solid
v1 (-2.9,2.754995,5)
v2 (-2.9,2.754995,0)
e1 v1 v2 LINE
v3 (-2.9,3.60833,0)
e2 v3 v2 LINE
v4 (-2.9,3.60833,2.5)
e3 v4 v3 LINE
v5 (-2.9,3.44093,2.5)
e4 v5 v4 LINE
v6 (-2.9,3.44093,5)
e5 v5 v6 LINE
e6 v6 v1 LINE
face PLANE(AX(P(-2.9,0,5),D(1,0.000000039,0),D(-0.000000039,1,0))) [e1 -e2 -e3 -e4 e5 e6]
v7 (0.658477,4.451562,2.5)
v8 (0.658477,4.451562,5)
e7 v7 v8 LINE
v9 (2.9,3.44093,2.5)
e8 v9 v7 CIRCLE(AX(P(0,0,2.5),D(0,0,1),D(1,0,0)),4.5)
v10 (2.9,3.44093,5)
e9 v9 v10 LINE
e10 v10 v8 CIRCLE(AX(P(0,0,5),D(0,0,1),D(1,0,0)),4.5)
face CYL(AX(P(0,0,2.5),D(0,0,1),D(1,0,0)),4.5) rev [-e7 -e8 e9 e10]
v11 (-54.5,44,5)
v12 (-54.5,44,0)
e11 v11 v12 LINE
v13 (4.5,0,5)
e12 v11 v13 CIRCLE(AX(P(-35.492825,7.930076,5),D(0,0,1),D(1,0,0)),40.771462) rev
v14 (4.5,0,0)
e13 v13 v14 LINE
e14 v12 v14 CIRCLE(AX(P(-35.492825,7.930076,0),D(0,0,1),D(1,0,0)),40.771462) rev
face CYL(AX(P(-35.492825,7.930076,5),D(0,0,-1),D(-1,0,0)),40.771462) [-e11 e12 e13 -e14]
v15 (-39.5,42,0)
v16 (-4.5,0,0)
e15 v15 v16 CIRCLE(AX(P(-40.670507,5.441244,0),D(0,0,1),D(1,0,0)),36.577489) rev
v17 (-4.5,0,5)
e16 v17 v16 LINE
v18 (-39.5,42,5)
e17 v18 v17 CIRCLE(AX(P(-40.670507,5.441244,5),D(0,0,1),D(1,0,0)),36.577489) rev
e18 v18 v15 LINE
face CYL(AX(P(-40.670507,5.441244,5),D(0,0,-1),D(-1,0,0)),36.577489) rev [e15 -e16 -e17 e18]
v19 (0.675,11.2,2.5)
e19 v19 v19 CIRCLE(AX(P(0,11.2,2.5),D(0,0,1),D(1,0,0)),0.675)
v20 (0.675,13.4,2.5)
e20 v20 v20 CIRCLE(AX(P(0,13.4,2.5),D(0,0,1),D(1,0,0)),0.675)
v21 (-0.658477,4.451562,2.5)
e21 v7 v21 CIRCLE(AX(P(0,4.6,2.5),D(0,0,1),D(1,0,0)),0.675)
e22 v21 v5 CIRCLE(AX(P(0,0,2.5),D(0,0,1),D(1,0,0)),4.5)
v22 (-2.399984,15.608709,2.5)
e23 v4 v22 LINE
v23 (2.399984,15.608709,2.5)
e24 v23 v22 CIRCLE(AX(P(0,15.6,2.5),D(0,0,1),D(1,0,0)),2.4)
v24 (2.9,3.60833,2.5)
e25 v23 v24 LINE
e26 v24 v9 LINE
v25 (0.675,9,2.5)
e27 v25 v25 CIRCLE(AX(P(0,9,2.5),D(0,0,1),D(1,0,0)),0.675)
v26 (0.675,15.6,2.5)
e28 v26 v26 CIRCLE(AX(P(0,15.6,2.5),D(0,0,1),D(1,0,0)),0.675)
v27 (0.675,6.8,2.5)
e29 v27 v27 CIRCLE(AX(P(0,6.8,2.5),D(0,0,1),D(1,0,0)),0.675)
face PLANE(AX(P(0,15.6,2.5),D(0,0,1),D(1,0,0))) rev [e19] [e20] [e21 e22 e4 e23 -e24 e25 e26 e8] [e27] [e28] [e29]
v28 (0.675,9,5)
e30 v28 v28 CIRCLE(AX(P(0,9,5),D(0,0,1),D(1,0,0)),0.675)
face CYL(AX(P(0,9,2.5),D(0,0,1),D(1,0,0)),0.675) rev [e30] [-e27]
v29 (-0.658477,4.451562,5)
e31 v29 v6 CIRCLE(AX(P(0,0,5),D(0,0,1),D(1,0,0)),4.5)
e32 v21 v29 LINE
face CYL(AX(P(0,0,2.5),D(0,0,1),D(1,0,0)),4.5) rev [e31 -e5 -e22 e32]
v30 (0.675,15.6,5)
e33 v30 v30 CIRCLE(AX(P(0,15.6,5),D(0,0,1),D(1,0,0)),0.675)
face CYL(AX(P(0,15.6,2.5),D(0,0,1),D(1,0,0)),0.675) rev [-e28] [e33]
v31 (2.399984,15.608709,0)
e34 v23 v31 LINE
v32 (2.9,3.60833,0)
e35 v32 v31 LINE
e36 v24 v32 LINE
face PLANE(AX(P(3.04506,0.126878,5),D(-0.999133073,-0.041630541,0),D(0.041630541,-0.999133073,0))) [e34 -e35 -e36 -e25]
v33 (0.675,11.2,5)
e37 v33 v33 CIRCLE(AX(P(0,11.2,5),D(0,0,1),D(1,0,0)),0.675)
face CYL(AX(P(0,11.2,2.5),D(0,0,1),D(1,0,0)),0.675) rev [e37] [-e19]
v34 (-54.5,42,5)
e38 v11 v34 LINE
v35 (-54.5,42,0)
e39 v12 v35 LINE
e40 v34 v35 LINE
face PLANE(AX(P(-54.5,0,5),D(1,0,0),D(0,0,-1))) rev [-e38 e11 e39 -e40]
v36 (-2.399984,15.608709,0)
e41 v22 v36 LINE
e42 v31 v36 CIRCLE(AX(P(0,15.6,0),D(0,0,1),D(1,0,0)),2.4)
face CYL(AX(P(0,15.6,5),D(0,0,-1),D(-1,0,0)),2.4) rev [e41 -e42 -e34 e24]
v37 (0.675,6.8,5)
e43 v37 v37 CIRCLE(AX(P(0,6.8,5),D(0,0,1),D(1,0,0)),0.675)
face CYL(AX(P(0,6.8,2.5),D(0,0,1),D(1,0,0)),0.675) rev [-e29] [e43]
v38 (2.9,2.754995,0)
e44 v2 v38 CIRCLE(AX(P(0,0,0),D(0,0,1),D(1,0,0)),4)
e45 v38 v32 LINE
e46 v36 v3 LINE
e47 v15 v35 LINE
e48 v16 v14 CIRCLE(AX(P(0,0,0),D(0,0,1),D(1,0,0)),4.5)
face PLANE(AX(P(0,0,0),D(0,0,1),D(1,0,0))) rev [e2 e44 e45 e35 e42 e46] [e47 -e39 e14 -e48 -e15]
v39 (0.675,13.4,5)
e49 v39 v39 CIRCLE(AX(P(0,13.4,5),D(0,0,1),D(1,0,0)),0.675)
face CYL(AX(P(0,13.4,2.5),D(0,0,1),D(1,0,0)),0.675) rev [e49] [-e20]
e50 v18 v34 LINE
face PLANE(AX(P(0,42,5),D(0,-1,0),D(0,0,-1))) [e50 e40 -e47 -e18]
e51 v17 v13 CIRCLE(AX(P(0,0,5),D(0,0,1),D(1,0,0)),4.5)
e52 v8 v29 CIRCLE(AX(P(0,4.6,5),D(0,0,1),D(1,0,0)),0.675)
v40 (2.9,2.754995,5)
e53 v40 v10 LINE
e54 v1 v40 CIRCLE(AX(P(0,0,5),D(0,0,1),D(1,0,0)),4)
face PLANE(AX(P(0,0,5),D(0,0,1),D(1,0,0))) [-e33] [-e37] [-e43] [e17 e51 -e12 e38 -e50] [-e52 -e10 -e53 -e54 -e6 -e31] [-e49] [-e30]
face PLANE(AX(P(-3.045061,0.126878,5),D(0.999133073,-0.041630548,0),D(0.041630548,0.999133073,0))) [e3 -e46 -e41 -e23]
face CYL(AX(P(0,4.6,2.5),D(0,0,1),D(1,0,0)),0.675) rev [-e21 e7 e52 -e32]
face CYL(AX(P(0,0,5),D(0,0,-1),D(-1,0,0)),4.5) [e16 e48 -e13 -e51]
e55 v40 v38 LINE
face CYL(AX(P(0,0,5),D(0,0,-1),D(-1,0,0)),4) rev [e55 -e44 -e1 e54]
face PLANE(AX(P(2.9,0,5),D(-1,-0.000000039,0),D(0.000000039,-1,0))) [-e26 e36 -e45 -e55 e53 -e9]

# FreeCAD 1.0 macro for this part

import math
import FreeCAD as App
import Part
import Sketcher
from FreeCAD import Vector
Q = App.Units.Quantity

doc = App.newDocument("Part")
params = doc.addObject("Spreadsheet::Sheet", "Params")
for row, (alias, value) in enumerate([
    ("sketch1_radius", "4 mm"),
    ("sketch1_radius2", "4.5 mm"),
    ("sketch1_radius3", "2.4 mm"),
    ("sketch1_width", "15 mm"),
    ("sketch1_height", "2 mm"),
    ("pad1_length", "5 mm"),
    ("sketch2_radius", "2.4 mm"),
    ("sketch2_radius2", "4.5 mm"),
    ("sketch2_diameter", "1.35 mm"),
    ("pad2_length", "2.5 mm"),
], start=1):
    params.set(f"A{row}", alias)
    params.set(f"B{row}", "=" + value)
    params.setAlias(f"B{row}", alias)

body = doc.addObject("PartDesign::Body", "Body")

sketch1 = body.newObject("Sketcher::SketchObject", "Sketch")
sketch1.AttachmentSupport = (doc.getObject("XY_Plane"), [""])
sketch1.MapMode = "FlatFace"
sketch1.addGeometry([
    Part.ArcOfCircle(Part.Circle(Vector(-35.492825, 7.930076, 0), Vector(0, 0, 1), 40.771462), math.radians(-11.215554), math.radians(117.787148)),
    Part.LineSegment(Vector(-54.5, 44, 0), Vector(-54.5, 42, 0)),
    Part.LineSegment(Vector(-54.5, 42, 0), Vector(-39.5, 42, 0)),
    Part.ArcOfCircle(Part.Circle(Vector(-40.670507, 5.441244, 0), Vector(0, 0, 1), 36.577489), math.radians(-8.555037), math.radians(88.166179)),
    Part.ArcOfCircle(Part.Circle(Vector(0, 0, 0), Vector(0, 0, 1), 4.5), math.radians(180), math.radians(360)),
    Part.LineSegment(Vector(-2.9, 2.754995, 0), Vector(-2.9, 3.60833, 0)),
    Part.LineSegment(Vector(-2.9, 3.60833, 0), Vector(-2.399984, 15.608709, 0)),
    Part.ArcOfCircle(Part.Circle(Vector(0, 15.6, 0), Vector(0, 0, 1), 2.4), math.radians(0.207911), math.radians(179.792089)),
    Part.LineSegment(Vector(2.399984, 15.608709, 0), Vector(2.9, 3.60833, 0)),
    Part.LineSegment(Vector(2.9, 3.60833, 0), Vector(2.9, 2.754995, 0)),
    Part.ArcOfCircle(Part.Circle(Vector(0, 0, 0), Vector(0, 0, 1), 4), math.radians(136.468848), math.radians(403.531152)),
], False)
sketch1.addConstraint([
    Sketcher.Constraint("Coincident", 0, 2, 1, 1),
    Sketcher.Constraint("Coincident", 1, 2, 2, 1),
    Sketcher.Constraint("Coincident", 2, 2, 3, 2),
    Sketcher.Constraint("Coincident", 3, 1, 4, 1),
    Sketcher.Constraint("Coincident", 4, 2, 0, 1),
    Sketcher.Constraint("Coincident", 5, 2, 6, 1),
    Sketcher.Constraint("Coincident", 6, 2, 7, 2),
    Sketcher.Constraint("Coincident", 7, 1, 8, 1),
    Sketcher.Constraint("Coincident", 8, 2, 9, 1),
    Sketcher.Constraint("Coincident", 9, 2, 10, 2),
    Sketcher.Constraint("Coincident", 10, 1, 5, 1),
    Sketcher.Constraint("Vertical", 1),
    Sketcher.Constraint("Horizontal", 2),
    Sketcher.Constraint("Vertical", 5),
    Sketcher.Constraint("Vertical", 9),
    Sketcher.Constraint("Coincident", 4, 3, -1, 1),
    Sketcher.Constraint("Coincident", 10, 3, -1, 1),
    Sketcher.Constraint("Symmetric", 6, 2, 7, 1, -2),
    Sketcher.Constraint("Symmetric", 5, 2, 8, 2, -2),
    Sketcher.Constraint("PointOnObject", 3, 1, -1),
    Sketcher.Constraint("PointOnObject", 4, 2, -1),
    Sketcher.Constraint("Radius", 10, Q("4 mm")),
    Sketcher.Constraint("Radius", 4, Q("4.5 mm")),
    Sketcher.Constraint("Radius", 7, Q("2.4 mm")),
    Sketcher.Constraint("DistanceX", 2, 1, 2, 2, Q("15 mm")),
    Sketcher.Constraint("DistanceY", 1, 2, 1, 1, Q("2 mm")),
    Sketcher.Constraint("DistanceY", -1, 1, 0, 2, Q("44 mm")),
    Sketcher.Constraint("DistanceY", -1, 1, 7, 3, Q("15.6 mm")),
    Sketcher.Constraint("DistanceX", 0, 2, -1, 1, Q("54.5 mm")),
    Sketcher.Constraint("DistanceX", 5, 2, -1, 1, Q("2.9 mm")),
    Sketcher.Constraint("Radius", 3, Q("36.577489 mm")),
    Sketcher.Constraint("Radius", 0, Q("40.771462 mm")),
    Sketcher.Constraint("Distance", 6, Q("12.010792 mm")),
    Sketcher.Constraint("DistanceY", 5, 1, 5, 2, Q("0.853334 mm")),
])
sketch1.setExpression("Constraints[21]", "Params.sketch1_radius")
sketch1.setExpression("Constraints[22]", "Params.sketch1_radius2")
sketch1.setExpression("Constraints[23]", "Params.sketch1_radius3")
sketch1.setExpression("Constraints[24]", "Params.sketch1_width")
sketch1.setExpression("Constraints[25]", "Params.sketch1_height")
pad1 = body.newObject("PartDesign::Pad", "Pad")
pad1.Profile = sketch1
pad1.setExpression("Length", "Params.pad1_length")

sketch2 = body.newObject("Sketcher::SketchObject", "Sketch001")
sketch2.AttachmentSupport = (doc.getObject("XY_Plane"), [""])
sketch2.MapMode = "FlatFace"
sketch2.AttachmentOffset = App.Placement(Vector(0, 0, 5), App.Rotation())
sketch2.addGeometry([
    Part.LineSegment(Vector(2.9, 3.44093, 0), Vector(2.9, 3.60833, 0)),
    Part.LineSegment(Vector(2.9, 3.60833, 0), Vector(2.399984, 15.608709, 0)),
    Part.ArcOfCircle(Part.Circle(Vector(0, 15.6, 0), Vector(0, 0, 1), 2.4), math.radians(0.207911), math.radians(179.792089)),
    Part.LineSegment(Vector(-2.399984, 15.608709, 0), Vector(-2.9, 3.60833, 0)),
    Part.LineSegment(Vector(-2.9, 3.60833, 0), Vector(-2.9, 3.44093, 0)),
    Part.ArcOfCircle(Part.Circle(Vector(0, 0, 0), Vector(0, 0, 1), 4.5), math.radians(98.414195), math.radians(130.124035)),
    Part.ArcOfCircle(Part.Circle(Vector(0, 4.6, 0), Vector(0, 0, 1), 0.675), math.radians(-12.703595), math.radians(192.703595)),
    Part.ArcOfCircle(Part.Circle(Vector(0, 0, 0), Vector(0, 0, 1), 4.5), math.radians(49.875966), math.radians(81.585805)),
    Part.Circle(Vector(0, 6.8, 0), Vector(0, 0, 1), 0.675),
    Part.Circle(Vector(0, 9, 0), Vector(0, 0, 1), 0.675),
    Part.Circle(Vector(0, 11.2, 0), Vector(0, 0, 1), 0.675),
    Part.Circle(Vector(0, 13.4, 0), Vector(0, 0, 1), 0.675),
    Part.Circle(Vector(0, 15.6, 0), Vector(0, 0, 1), 0.675),
], False)
sketch2.addConstraint([
    Sketcher.Constraint("Coincident", 0, 2, 1, 1),
    Sketcher.Constraint("Coincident", 1, 2, 2, 1),
    Sketcher.Constraint("Coincident", 2, 2, 3, 1),
    Sketcher.Constraint("Coincident", 3, 2, 4, 1),
    Sketcher.Constraint("Coincident", 4, 2, 5, 2),
    Sketcher.Constraint("Coincident", 5, 1, 6, 2),
    Sketcher.Constraint("Coincident", 6, 1, 7, 2),
    Sketcher.Constraint("Coincident", 7, 1, 0, 1),
    Sketcher.Constraint("Vertical", 0),
    Sketcher.Constraint("Vertical", 4),
    Sketcher.Constraint("Coincident", 5, 3, -1, 1),
    Sketcher.Constraint("Coincident", 7, 3, -1, 1),
    Sketcher.Constraint("Coincident", 12, 3, 2, 3),
    Sketcher.Constraint("Equal", 5, 7),
    Sketcher.Constraint("Equal", 6, 8),
    Sketcher.Constraint("Equal", 8, 9),
    Sketcher.Constraint("Equal", 9, 10),
    Sketcher.Constraint("Equal", 10, 11),
    Sketcher.Constraint("Equal", 11, 12),
    Sketcher.Constraint("Symmetric", 1, 2, 2, 2, -2),
    Sketcher.Constraint("Symmetric", 0, 2, 3, 2, -2),
    Sketcher.Constraint("PointOnObject", 6, 3, -2),
    Sketcher.Constraint("PointOnObject", 8, 3, -2),
    Sketcher.Constraint("PointOnObject", 9, 3, -2),
    Sketcher.Constraint("PointOnObject", 10, 3, -2),
    Sketcher.Constraint("PointOnObject", 11, 3, -2),
    Sketcher.Constraint("Radius", 2, Q("2.4 mm")),
    Sketcher.Constraint("Radius", 5, Q("4.5 mm")),
    Sketcher.Constraint("Diameter", 8, Q("1.35 mm")),
    Sketcher.Constraint("DistanceY", -1, 1, 9, 3, Q("9 mm")),
    Sketcher.Constraint("DistanceY", 6, 3, 2, 3, Q("11 mm")),
    Sketcher.Constraint("DistanceY", -1, 1, 2, 3, Q("15.6 mm")),
    Sketcher.Constraint("DistanceY", -1, 1, 8, 3, Q("6.8 mm")),
    Sketcher.Constraint("DistanceY", -1, 1, 10, 3, Q("11.2 mm")),
    Sketcher.Constraint("DistanceY", -1, 1, 11, 3, Q("13.4 mm")),
    Sketcher.Constraint("DistanceX", -1, 1, 0, 2, Q("2.9 mm")),
    Sketcher.Constraint("DistanceY", 0, 1, 0, 2, Q("0.1674 mm")),
    Sketcher.Constraint("Distance", 1, Q("12.010792 mm")),
])
sketch2.setExpression("Constraints[26]", "Params.sketch2_radius")
sketch2.setExpression("Constraints[27]", "Params.sketch2_radius2")
sketch2.setExpression("Constraints[28]", "Params.sketch2_diameter")
pad2 = body.newObject("PartDesign::Pad", "Pad001")
pad2.Profile = sketch2
pad2.setExpression("Length", "Params.pad2_length")
pad2.Reversed = True

doc.recompute()
